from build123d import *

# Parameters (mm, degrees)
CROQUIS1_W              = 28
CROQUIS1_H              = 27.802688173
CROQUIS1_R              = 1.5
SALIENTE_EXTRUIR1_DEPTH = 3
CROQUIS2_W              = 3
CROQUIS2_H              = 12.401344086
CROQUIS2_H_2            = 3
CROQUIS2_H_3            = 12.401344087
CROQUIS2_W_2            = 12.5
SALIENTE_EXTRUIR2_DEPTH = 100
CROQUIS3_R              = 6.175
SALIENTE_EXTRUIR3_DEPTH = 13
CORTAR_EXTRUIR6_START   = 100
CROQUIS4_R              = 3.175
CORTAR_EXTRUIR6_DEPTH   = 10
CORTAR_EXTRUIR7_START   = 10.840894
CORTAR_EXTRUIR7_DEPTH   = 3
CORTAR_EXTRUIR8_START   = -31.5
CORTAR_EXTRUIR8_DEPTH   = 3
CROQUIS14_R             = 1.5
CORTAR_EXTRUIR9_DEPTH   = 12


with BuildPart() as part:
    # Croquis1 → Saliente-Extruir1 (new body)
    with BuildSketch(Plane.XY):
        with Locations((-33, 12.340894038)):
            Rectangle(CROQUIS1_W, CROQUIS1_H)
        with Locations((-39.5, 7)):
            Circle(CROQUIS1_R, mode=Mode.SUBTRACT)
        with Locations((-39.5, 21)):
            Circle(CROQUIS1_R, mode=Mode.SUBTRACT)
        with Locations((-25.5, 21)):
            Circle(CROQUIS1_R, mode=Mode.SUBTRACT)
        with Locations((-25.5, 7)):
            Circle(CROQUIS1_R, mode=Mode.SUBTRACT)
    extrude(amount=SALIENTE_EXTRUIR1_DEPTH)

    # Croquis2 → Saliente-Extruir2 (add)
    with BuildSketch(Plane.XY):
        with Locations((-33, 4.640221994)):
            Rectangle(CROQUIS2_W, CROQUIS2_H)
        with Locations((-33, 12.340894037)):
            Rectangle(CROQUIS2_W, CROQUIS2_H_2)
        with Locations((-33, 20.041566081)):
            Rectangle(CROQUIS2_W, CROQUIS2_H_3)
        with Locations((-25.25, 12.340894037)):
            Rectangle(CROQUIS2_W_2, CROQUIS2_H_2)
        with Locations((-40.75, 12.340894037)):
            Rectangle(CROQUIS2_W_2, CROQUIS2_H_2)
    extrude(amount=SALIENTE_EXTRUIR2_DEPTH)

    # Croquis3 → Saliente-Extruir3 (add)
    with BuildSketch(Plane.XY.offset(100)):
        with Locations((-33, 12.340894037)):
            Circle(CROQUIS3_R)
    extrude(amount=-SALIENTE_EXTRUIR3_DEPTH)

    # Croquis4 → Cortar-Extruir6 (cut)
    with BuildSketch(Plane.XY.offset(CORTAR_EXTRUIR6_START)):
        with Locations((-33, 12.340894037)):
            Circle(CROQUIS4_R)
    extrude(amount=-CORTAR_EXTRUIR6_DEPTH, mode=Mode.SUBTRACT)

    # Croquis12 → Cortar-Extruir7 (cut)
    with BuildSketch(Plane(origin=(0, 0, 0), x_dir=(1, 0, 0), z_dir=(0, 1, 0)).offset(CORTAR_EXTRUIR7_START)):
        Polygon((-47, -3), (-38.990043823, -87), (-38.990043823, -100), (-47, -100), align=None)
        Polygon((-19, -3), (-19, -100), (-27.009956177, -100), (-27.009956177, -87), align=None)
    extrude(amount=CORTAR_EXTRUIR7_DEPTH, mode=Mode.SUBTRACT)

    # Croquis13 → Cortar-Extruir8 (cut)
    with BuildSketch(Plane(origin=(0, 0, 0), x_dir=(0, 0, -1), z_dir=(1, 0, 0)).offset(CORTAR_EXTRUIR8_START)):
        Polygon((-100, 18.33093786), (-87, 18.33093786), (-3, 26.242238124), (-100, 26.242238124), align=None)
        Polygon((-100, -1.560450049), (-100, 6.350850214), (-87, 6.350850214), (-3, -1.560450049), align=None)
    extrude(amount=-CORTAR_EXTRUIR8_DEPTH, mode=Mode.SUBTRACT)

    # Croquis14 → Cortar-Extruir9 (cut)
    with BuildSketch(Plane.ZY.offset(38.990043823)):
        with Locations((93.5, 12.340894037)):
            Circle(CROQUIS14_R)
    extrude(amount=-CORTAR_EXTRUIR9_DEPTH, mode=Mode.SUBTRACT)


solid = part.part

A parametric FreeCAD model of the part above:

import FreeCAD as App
import Part
import Sketcher

V = App.Vector


def add_polygon(sketch, points):
    """Adds a closed chain of lines whose ends are joined by coincident constraints."""
    first, n = sketch.GeometryCount, len(points)
    for a, b in zip(points, points[1:] + points[:1]):
        sketch.addGeometry(Part.LineSegment(App.Vector(*a, 0), App.Vector(*b, 0)), False)
    for i in range(n):
        sketch.addConstraint(Sketcher.Constraint("Coincident", first + i, 2, first + (i + 1) % n, 1))

doc = App.newDocument("Part")
body = doc.addObject("PartDesign::Body", "Body")

sketch1 = doc.addObject("Sketcher::SketchObject", "Sketch")
body.addObject(sketch1)
sketch1.AttachmentSupport = (doc.XY_Plane, [""])
sketch1.MapMode = "FlatFace"
add_polygon(sketch1, [(-47, 26.242238), (-47, -1.56045), (-19, -1.56045), (-19, 26.242238)])
sketch1.addGeometry(Part.Circle(V(-39.5, 7, 0), V(0, 0, 1), 1.5), False)
sketch1.addGeometry(Part.Circle(V(-25.5, 7, 0), V(0, 0, 1), 1.5), False)
sketch1.addGeometry(Part.Circle(V(-39.5, 21, 0), V(0, 0, 1), 1.5), False)
sketch1.addGeometry(Part.Circle(V(-25.5, 21, 0), V(0, 0, 1), 1.5), False)
sketch1.addConstraint(Sketcher.Constraint("Vertical", 0))
sketch1.addConstraint(Sketcher.Constraint("Horizontal", 1))
sketch1.addConstraint(Sketcher.Constraint("Vertical", 2))
sketch1.addConstraint(Sketcher.Constraint("Horizontal", 3))
sketch1.addConstraint(Sketcher.Constraint("Equal", 4, 5))
sketch1.addConstraint(Sketcher.Constraint("Equal", 5, 6))
sketch1.addConstraint(Sketcher.Constraint("Equal", 6, 7))
sketch1.addConstraint(Sketcher.Constraint("Horizontal", 4, 3, 5, 3))
sketch1.addConstraint(Sketcher.Constraint("Horizontal", 6, 3, 7, 3))
sketch1.addConstraint(Sketcher.Constraint("Vertical", 4, 3, 6, 3))
sketch1.addConstraint(Sketcher.Constraint("Vertical", 5, 3, 7, 3))
sketch1.addConstraint(Sketcher.Constraint("Diameter", 4, 3.0))
sketch1.addConstraint(Sketcher.Constraint("DistanceX", 1, 1, 1, 2, 28.0))
sketch1.addConstraint(Sketcher.Constraint("DistanceY", -1, 1, 4, 3, 7.0))
sketch1.addConstraint(Sketcher.Constraint("DistanceY", -1, 1, 6, 3, 21.0))
sketch1.addConstraint(Sketcher.Constraint("DistanceX", 0, 2, -1, 1, 47.0))
sketch1.addConstraint(Sketcher.Constraint("DistanceX", 4, 3, 5, 3, 14.0))
sketch1.addConstraint(Sketcher.Constraint("DistanceX", 4, 3, -1, 1, 39.5))
sketch1.addConstraint(Sketcher.Constraint("DistanceY", 0, 2, 0, 1, 27.802688))
sketch1.addConstraint(Sketcher.Constraint("DistanceY", 0, 2, -1, 1, 1.56045))
pad1 = doc.addObject("PartDesign::Pad", "Pad")
body.addObject(pad1)
pad1.Profile = sketch1
pad1.Length = 3

sketch2 = doc.addObject("Sketcher::SketchObject", "Sketch001")
body.addObject(sketch2)
sketch2.AttachmentSupport = (doc.XY_Plane, [""])
sketch2.MapMode = "FlatFace"
add_polygon(sketch2, [(-34.5, -1.56045), (-31.5, -1.56045), (-31.5, 10.840894), (-19, 10.840894), (-19, 13.840894), (-31.5, 13.840894), (-31.5, 26.242238), (-34.5, 26.242238), (-34.5, 13.840894), (-47, 13.840894), (-47, 10.840894), (-34.5, 10.840894)])
sketch2.addConstraint(Sketcher.Constraint("Horizontal", 0))
sketch2.addConstraint(Sketcher.Constraint("Vertical", 1))
sketch2.addConstraint(Sketcher.Constraint("Horizontal", 2))
sketch2.addConstraint(Sketcher.Constraint("Vertical", 3))
sketch2.addConstraint(Sketcher.Constraint("Horizontal", 4))
sketch2.addConstraint(Sketcher.Constraint("Vertical", 5))
sketch2.addConstraint(Sketcher.Constraint("Horizontal", 6))
sketch2.addConstraint(Sketcher.Constraint("Vertical", 7))
sketch2.addConstraint(Sketcher.Constraint("Horizontal", 8))
sketch2.addConstraint(Sketcher.Constraint("Vertical", 9))
sketch2.addConstraint(Sketcher.Constraint("Horizontal", 10))
sketch2.addConstraint(Sketcher.Constraint("Vertical", 11))
sketch2.addConstraint(Sketcher.Constraint("Horizontal", 4, 2, 7, 2))
sketch2.addConstraint(Sketcher.Constraint("Horizontal", 2, 2, 9, 2))
sketch2.addConstraint(Sketcher.Constraint("Vertical", 1, 2, 4, 2))
sketch2.addConstraint(Sketcher.Constraint("Vertical", 7, 2, 10, 2))
sketch2.addConstraint(Sketcher.Constraint("Equal", 4, 8))
sketch2.addConstraint(Sketcher.Constraint("Equal", 6, 3))
sketch2.addConstraint(Sketcher.Constraint("Equal", 1, 5))
sketch2.addConstraint(Sketcher.Constraint("DistanceX", 0, 1, 0, 2, 3.0))
sketch2.addConstraint(Sketcher.Constraint("DistanceX", 2, 1, 2, 2, 12.5))
sketch2.addConstraint(Sketcher.Constraint("DistanceX", 2, 2, -1, 1, 19.0))
sketch2.addConstraint(Sketcher.Constraint("DistanceY", 1, 1, 1, 2, 12.401344))
sketch2.addConstraint(Sketcher.Constraint("DistanceY", 0, 2, -1, 1, 1.56045))
pad2 = doc.addObject("PartDesign::Pad", "Pad001")
body.addObject(pad2)
pad2.Profile = sketch2
pad2.Length = 100

sketch3 = doc.addObject("Sketcher::SketchObject", "Sketch002")
body.addObject(sketch3)
sketch3.AttachmentSupport = (doc.XY_Plane, [""])
sketch3.MapMode = "FlatFace"
sketch3.AttachmentOffset = App.Placement(V(0, 0, 100), App.Rotation())
sketch3.addGeometry(Part.Circle(V(-33, 12.340894, 0), V(0, 0, 1), 6.175), False)
sketch3.addConstraint(Sketcher.Constraint("Diameter", 0, 12.35))
sketch3.addConstraint(Sketcher.Constraint("DistanceX", 0, 3, -1, 1, 33.0))
sketch3.addConstraint(Sketcher.Constraint("DistanceY", -1, 1, 0, 3, 12.340894))
pad3 = doc.addObject("PartDesign::Pad", "Pad002")
body.addObject(pad3)
pad3.Profile = sketch3
pad3.Length = 13
pad3.Reversed = True

sketch4 = doc.addObject("Sketcher::SketchObject", "Sketch003")
body.addObject(sketch4)
sketch4.AttachmentSupport = (doc.XY_Plane, [""])
sketch4.MapMode = "FlatFace"
sketch4.AttachmentOffset = App.Placement(V(0, 0, 100), App.Rotation())
sketch4.addGeometry(Part.Circle(V(-33, 12.340894, 0), V(0, 0, 1), 3.175), False)
sketch4.addConstraint(Sketcher.Constraint("Diameter", 0, 6.35))
sketch4.addConstraint(Sketcher.Constraint("DistanceX", 0, 3, -1, 1, 33.0))
sketch4.addConstraint(Sketcher.Constraint("DistanceY", -1, 1, 0, 3, 12.340894))
pocket1 = doc.addObject("PartDesign::Pocket", "Pocket")
body.addObject(pocket1)
pocket1.Profile = sketch4
pocket1.Length = 10

sketch5 = doc.addObject("Sketcher::SketchObject", "Sketch004")
body.addObject(sketch5)
sketch5.AttachmentSupport = (doc.XZ_Plane, [""])
sketch5.MapMode = "FlatFace"
sketch5.AttachmentOffset = App.Placement(V(0, 0, -10.840894), App.Rotation())
add_polygon(sketch5, [(-38.990044, 87), (-47, 3), (-47, 100), (-38.990044, 100)])
add_polygon(sketch5, [(-19, 100), (-19, 3), (-27.009956, 87), (-27.009956, 100)])
sketch5.addConstraint(Sketcher.Constraint("Vertical", 1))
sketch5.addConstraint(Sketcher.Constraint("Horizontal", 2))
sketch5.addConstraint(Sketcher.Constraint("Vertical", 3))
sketch5.addConstraint(Sketcher.Constraint("Vertical", 4))
sketch5.addConstraint(Sketcher.Constraint("Vertical", 6))
sketch5.addConstraint(Sketcher.Constraint("Horizontal", 7))
sketch5.addConstraint(Sketcher.Constraint("Horizontal", 0, 2, 4, 2))
sketch5.addConstraint(Sketcher.Constraint("Horizontal", 3, 2, 5, 2))
sketch5.addConstraint(Sketcher.Constraint("Horizontal", 2, 2, 6, 2))
sketch5.addConstraint(Sketcher.Constraint("Equal", 2, 7))
sketch5.addConstraint(Sketcher.Constraint("DistanceY", 1, 1, 1, 2, 97.0))
sketch5.addConstraint(Sketcher.Constraint("DistanceY", 3, 2, 3, 1, 13.0))
sketch5.addConstraint(Sketcher.Constraint("DistanceX", 0, 2, -1, 1, 47.0))
sketch5.addConstraint(Sketcher.Constraint("DistanceY", -1, 1, 0, 2, 3.0))
sketch5.addConstraint(Sketcher.Constraint("DistanceX", 4, 2, -1, 1, 19.0))
sketch5.addConstraint(Sketcher.Constraint("DistanceX", 2, 1, 2, 2, 8.009956))
pocket2 = doc.addObject("PartDesign::Pocket", "Pocket001")
body.addObject(pocket2)
pocket2.Profile = sketch5
pocket2.Length = 3

sketch6 = doc.addObject("Sketcher::SketchObject", "Sketch005")
body.addObject(sketch6)
sketch6.AttachmentSupport = (doc.YZ_Plane, [""])
sketch6.MapMode = "FlatFace"
sketch6.AttachmentOffset = App.Placement(V(0, 0, -31.5), App.Rotation())
add_polygon(sketch6, [(18.330938, 100), (18.330938, 87), (26.242238, 3), (26.242238, 100)])
add_polygon(sketch6, [(6.35085, 100), (-1.56045, 100), (-1.56045, 3), (6.35085, 87)])
sketch6.addConstraint(Sketcher.Constraint("Vertical", 0))
sketch6.addConstraint(Sketcher.Constraint("Vertical", 2))
sketch6.addConstraint(Sketcher.Constraint("Horizontal", 3))
sketch6.addConstraint(Sketcher.Constraint("Horizontal", 4))
sketch6.addConstraint(Sketcher.Constraint("Vertical", 5))
sketch6.addConstraint(Sketcher.Constraint("Vertical", 7))
sketch6.addConstraint(Sketcher.Constraint("Horizontal", 3, 2, 4, 2))
sketch6.addConstraint(Sketcher.Constraint("Horizontal", 1, 2, 5, 2))
sketch6.addConstraint(Sketcher.Constraint("Horizontal", 0, 2, 6, 2))
sketch6.addConstraint(Sketcher.Constraint("Equal", 3, 4))
sketch6.addConstraint(Sketcher.Constraint("DistanceY", 0, 2, 0, 1, 13.0))
sketch6.addConstraint(Sketcher.Constraint("DistanceY", 2, 1, 2, 2, 97.0))
sketch6.addConstraint(Sketcher.Constraint("DistanceY", -1, 1, 0, 2, 87.0))
sketch6.addConstraint(Sketcher.Constraint("DistanceX", 3, 2, 3, 1, 7.9113))
sketch6.addConstraint(Sketcher.Constraint("DistanceX", -1, 1, 1, 2, 26.242238))
sketch6.addConstraint(Sketcher.Constraint("DistanceX", 4, 2, -1, 1, 1.56045))
pocket3 = doc.addObject("PartDesign::Pocket", "Pocket002")
body.addObject(pocket3)
pocket3.Profile = sketch6
pocket3.Length = 3

sketch7 = doc.addObject("Sketcher::SketchObject", "Sketch006")
body.addObject(sketch7)
sketch7.AttachmentSupport = (doc.YZ_Plane, [""])
sketch7.MapMode = "FlatFace"
sketch7.AttachmentOffset = App.Placement(V(0, 0, -38.990044), App.Rotation())
sketch7.addGeometry(Part.Circle(V(12.340894, 93.5, 0), V(0, 0, 1), 1.5), False)
sketch7.addConstraint(Sketcher.Constraint("Diameter", 0, 3.0))
sketch7.addConstraint(Sketcher.Constraint("DistanceY", -1, 1, 0, 3, 93.5))
sketch7.addConstraint(Sketcher.Constraint("DistanceX", -1, 1, 0, 3, 12.340894))
pocket4 = doc.addObject("PartDesign::Pocket", "Pocket003")
body.addObject(pocket4)
pocket4.Profile = sketch7
pocket4.Length = 12
pocket4.Reversed = True

doc.recompute()
